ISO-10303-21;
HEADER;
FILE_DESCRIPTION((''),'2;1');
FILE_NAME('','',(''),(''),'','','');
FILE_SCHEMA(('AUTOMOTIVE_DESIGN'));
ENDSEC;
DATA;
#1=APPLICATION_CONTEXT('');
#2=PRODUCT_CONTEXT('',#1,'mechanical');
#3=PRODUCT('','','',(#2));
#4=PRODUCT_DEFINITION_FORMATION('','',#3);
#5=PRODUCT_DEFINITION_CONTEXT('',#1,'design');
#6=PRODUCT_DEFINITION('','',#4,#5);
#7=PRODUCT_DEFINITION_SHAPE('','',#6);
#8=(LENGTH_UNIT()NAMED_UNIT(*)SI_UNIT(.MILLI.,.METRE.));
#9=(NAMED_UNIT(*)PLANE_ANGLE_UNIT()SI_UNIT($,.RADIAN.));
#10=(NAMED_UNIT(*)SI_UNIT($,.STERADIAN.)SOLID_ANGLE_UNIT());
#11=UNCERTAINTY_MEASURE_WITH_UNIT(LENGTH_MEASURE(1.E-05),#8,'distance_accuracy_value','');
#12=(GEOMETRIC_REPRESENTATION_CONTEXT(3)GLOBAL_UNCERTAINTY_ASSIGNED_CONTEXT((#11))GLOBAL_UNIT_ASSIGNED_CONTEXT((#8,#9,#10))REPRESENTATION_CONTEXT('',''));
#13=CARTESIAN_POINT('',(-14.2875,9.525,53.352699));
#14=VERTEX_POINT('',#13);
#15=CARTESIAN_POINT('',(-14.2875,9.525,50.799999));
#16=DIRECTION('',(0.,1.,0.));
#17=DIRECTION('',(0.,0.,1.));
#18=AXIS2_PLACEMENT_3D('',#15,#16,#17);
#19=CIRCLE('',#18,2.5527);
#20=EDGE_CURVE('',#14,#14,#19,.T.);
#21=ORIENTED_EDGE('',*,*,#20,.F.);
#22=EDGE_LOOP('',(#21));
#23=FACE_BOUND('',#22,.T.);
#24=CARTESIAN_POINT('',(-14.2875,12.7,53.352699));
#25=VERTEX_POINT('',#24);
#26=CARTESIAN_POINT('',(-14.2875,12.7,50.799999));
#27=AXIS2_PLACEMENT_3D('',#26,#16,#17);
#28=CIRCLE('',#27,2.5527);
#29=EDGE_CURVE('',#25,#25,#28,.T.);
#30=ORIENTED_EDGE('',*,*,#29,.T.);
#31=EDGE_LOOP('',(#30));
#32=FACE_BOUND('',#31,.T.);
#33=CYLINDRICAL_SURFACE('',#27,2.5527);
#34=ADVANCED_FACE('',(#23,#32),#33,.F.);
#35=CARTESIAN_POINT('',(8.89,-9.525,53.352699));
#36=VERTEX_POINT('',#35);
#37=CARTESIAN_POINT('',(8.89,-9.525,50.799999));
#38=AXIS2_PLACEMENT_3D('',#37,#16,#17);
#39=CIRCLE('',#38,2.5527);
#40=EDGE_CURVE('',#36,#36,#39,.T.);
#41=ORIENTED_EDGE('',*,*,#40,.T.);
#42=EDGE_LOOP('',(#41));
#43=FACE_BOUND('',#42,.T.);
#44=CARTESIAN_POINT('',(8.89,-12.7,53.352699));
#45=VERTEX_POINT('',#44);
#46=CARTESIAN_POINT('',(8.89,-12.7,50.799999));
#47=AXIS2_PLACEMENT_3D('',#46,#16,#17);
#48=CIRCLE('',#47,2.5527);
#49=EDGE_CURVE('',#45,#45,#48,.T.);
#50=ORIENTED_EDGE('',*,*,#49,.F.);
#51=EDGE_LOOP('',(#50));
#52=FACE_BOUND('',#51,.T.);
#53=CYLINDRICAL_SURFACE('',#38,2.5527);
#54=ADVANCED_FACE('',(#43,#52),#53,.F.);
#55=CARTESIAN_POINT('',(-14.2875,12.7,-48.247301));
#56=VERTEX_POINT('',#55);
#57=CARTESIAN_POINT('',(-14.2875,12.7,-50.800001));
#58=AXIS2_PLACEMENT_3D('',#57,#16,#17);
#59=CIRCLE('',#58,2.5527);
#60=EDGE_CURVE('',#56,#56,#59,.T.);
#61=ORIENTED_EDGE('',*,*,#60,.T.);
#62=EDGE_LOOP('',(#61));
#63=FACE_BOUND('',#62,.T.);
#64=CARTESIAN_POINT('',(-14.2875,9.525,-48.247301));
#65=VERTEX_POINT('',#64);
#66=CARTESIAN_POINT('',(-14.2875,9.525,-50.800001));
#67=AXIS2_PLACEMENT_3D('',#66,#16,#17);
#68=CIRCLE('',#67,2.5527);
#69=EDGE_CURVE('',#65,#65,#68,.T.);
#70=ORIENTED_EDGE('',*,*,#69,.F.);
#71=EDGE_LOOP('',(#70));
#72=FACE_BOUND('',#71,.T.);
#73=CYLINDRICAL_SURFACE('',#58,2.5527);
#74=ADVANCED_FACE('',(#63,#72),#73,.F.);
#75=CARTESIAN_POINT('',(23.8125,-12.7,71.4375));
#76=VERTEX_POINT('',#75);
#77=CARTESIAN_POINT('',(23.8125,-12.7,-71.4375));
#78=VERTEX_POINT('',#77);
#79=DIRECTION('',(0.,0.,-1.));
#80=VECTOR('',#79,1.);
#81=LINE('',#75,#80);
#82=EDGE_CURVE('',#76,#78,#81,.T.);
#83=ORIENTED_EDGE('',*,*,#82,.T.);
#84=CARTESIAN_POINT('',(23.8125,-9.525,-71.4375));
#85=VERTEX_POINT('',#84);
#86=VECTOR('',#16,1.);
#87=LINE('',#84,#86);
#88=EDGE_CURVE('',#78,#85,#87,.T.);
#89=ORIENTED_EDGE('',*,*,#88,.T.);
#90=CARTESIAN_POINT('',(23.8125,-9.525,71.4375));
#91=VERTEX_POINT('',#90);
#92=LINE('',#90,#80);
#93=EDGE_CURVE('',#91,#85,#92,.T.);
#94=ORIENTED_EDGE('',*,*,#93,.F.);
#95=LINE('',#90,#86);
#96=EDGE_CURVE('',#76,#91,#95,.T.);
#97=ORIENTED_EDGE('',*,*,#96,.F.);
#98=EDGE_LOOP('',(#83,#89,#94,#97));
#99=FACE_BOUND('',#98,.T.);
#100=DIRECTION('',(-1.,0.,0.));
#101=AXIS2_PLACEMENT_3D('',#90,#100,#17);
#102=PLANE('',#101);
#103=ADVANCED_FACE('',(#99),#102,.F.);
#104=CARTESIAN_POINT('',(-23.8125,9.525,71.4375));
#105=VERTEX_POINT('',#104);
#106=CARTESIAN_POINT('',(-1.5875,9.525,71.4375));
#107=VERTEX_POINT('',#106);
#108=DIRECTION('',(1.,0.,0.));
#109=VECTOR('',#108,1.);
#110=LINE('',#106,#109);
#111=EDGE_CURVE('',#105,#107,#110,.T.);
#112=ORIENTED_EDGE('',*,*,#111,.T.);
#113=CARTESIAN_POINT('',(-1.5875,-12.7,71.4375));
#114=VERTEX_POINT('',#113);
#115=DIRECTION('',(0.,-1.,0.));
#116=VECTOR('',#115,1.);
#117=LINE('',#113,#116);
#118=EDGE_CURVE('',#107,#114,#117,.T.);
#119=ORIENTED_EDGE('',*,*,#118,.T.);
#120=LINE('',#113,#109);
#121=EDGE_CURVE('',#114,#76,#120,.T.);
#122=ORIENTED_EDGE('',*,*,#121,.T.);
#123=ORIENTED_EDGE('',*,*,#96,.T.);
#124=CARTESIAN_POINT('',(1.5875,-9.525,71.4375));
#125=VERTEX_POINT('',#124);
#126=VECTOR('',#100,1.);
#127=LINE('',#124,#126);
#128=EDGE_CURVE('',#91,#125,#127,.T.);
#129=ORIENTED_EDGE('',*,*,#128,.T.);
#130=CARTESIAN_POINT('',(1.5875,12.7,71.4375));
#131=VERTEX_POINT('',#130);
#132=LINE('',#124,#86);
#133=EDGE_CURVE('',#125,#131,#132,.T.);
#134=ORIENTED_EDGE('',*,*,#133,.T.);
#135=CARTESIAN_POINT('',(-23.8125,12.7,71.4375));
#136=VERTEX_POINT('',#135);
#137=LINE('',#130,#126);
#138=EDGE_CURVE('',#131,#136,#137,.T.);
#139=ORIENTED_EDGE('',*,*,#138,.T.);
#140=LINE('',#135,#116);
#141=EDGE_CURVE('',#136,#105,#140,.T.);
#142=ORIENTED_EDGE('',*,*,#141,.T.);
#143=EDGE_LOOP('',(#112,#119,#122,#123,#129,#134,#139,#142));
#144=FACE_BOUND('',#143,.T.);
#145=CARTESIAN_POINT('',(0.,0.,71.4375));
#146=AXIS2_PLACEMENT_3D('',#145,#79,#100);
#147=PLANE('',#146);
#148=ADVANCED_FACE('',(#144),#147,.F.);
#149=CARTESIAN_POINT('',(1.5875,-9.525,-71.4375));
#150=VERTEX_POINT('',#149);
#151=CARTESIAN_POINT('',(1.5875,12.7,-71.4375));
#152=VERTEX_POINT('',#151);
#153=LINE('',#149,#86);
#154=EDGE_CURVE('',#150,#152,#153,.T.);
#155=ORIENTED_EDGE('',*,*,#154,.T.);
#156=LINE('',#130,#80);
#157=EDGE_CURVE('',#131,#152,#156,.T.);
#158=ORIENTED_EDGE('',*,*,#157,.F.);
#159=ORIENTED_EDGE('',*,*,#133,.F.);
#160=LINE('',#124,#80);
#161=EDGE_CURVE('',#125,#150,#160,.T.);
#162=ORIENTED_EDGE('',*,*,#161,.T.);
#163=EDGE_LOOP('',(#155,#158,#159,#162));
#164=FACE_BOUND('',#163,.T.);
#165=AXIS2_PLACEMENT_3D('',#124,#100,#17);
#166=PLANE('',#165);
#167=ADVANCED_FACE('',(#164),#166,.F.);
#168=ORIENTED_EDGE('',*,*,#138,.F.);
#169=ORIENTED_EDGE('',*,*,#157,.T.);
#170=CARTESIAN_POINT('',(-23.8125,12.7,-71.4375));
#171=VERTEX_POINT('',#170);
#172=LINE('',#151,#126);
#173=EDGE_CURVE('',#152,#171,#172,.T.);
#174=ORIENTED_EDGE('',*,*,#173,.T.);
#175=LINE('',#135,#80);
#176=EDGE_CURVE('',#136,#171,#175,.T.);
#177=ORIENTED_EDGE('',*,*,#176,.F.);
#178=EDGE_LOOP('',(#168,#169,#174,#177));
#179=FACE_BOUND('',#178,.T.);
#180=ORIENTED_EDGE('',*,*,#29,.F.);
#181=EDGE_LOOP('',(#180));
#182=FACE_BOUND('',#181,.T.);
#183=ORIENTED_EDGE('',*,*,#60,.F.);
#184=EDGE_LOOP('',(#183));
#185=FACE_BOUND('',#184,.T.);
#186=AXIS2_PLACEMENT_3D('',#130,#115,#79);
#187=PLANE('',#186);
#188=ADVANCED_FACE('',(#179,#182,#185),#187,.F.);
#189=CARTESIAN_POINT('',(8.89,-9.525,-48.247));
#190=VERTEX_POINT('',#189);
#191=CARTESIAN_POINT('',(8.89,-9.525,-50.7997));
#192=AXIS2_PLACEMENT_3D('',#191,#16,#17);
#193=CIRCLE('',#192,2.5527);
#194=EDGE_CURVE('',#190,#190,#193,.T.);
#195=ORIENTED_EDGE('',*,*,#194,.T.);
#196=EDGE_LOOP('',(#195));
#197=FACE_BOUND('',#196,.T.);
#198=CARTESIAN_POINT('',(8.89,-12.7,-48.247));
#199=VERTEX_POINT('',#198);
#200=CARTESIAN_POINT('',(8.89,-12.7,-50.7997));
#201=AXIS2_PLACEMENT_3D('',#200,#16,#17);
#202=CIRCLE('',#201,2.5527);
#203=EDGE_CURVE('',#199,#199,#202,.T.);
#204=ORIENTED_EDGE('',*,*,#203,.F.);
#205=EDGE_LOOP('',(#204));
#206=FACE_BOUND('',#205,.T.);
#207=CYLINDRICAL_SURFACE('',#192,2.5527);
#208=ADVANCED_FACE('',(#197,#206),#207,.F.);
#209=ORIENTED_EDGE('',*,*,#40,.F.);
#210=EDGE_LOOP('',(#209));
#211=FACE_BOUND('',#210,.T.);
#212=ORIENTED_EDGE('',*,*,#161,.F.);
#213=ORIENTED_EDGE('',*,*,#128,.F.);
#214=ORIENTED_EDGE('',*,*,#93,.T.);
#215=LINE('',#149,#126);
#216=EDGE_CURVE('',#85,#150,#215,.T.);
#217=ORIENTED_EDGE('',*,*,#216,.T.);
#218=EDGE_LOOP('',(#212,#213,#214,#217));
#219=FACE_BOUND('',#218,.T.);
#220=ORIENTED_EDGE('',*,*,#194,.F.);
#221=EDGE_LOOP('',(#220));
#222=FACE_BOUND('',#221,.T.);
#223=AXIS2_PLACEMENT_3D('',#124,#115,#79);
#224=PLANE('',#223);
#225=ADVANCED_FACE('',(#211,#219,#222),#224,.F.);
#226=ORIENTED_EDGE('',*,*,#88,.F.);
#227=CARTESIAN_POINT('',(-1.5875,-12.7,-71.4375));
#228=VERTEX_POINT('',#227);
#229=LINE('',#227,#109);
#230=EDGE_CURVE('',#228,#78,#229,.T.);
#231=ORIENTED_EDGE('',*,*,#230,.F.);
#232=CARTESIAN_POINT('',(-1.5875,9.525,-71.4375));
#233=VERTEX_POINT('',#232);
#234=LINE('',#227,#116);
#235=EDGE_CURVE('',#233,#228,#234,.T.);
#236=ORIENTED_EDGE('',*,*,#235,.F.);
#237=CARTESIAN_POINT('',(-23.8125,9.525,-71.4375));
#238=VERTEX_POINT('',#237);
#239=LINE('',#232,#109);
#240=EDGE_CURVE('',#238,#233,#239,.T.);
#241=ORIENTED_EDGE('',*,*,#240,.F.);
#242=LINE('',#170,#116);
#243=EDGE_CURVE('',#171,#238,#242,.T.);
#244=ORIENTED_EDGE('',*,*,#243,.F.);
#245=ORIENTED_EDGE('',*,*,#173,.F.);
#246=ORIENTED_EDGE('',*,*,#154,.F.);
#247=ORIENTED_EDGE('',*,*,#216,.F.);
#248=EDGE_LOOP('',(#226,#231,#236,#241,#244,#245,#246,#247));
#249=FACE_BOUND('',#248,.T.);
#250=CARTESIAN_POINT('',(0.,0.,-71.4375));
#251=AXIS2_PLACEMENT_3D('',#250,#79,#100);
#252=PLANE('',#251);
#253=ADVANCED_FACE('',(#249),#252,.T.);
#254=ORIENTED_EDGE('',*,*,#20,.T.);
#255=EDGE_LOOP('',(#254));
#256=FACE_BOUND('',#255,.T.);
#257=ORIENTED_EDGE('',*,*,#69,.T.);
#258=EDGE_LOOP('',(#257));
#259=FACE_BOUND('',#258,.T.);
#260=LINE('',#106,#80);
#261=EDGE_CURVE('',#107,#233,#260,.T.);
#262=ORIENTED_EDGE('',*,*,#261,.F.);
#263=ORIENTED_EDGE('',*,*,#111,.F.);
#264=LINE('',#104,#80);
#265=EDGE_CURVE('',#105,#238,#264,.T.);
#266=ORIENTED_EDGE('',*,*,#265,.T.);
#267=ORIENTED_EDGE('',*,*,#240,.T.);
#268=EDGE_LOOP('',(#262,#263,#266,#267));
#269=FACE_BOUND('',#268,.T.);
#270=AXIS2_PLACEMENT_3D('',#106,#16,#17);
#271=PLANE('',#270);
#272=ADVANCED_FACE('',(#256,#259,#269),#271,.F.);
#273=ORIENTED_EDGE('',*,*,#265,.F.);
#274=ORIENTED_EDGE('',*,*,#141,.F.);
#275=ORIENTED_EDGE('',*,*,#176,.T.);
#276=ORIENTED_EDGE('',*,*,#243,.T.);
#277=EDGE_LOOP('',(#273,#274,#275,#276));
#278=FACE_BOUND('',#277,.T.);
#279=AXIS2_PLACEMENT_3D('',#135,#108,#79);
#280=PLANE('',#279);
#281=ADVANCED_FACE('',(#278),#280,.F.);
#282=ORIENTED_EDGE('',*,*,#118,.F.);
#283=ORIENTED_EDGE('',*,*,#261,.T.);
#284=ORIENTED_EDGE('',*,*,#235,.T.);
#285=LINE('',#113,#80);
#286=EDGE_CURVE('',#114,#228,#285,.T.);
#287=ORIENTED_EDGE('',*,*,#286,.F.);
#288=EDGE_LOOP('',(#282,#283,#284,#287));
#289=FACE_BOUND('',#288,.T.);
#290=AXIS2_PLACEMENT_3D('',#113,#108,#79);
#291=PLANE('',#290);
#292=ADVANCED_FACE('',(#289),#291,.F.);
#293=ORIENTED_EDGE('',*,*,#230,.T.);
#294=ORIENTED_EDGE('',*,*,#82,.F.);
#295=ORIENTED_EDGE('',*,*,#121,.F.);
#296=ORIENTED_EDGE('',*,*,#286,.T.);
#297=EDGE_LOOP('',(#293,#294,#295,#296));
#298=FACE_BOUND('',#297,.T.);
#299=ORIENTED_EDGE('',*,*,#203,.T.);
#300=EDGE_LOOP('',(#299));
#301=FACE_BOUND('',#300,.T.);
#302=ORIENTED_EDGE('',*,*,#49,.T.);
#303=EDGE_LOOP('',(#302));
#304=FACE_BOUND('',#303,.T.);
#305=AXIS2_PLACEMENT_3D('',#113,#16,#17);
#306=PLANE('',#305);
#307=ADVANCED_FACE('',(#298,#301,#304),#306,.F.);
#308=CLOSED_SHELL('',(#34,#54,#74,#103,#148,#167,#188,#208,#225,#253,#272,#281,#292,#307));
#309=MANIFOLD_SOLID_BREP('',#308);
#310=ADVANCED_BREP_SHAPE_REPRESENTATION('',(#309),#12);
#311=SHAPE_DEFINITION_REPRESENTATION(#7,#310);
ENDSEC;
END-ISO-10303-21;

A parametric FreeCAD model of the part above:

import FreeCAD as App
import Part
import Sketcher
from FreeCAD import Vector
Q = App.Units.Quantity

doc = App.newDocument("Part")
body = doc.addObject("PartDesign::Body", "Body")

# Sketch on XY plane
sketch1 = doc.addObject("Sketcher::SketchObject", "Sketch")
body.addObject(sketch1)
sketch1.AttachmentSupport = (doc.XY_Plane, [""])
sketch1.MapMode = "FlatFace"
sketch1.addGeometry(Part.LineSegment(Vector(23.8, -12.7, 0), Vector(23.8, -9.5, 0)), False)
sketch1.addGeometry(Part.LineSegment(Vector(23.8, -9.5, 0), Vector(1.6, -9.5, 0)), False)
sketch1.addGeometry(Part.LineSegment(Vector(1.6, -9.5, 0), Vector(1.6, 12.7, 0)), False)
sketch1.addGeometry(Part.LineSegment(Vector(1.6, 12.7, 0), Vector(-23.8, 12.7, 0)), False)
sketch1.addGeometry(Part.LineSegment(Vector(-23.8, 12.7, 0), Vector(-23.8, 9.5, 0)), False)
sketch1.addGeometry(Part.LineSegment(Vector(-23.8, 9.5, 0), Vector(-1.6, 9.5, 0)), False)
sketch1.addGeometry(Part.LineSegment(Vector(-1.6, 9.5, 0), Vector(-1.6, -12.7, 0)), False)
sketch1.addGeometry(Part.LineSegment(Vector(-1.6, -12.7, 0), Vector(23.8, -12.7, 0)), False)
sketch1.addConstraint(Sketcher.Constraint("Coincident", 0, 2, 1, 1))
sketch1.addConstraint(Sketcher.Constraint("Coincident", 1, 2, 2, 1))
sketch1.addConstraint(Sketcher.Constraint("Coincident", 2, 2, 3, 1))
sketch1.addConstraint(Sketcher.Constraint("Coincident", 3, 2, 4, 1))
sketch1.addConstraint(Sketcher.Constraint("Coincident", 4, 2, 5, 1))
sketch1.addConstraint(Sketcher.Constraint("Coincident", 5, 2, 6, 1))
sketch1.addConstraint(Sketcher.Constraint("Coincident", 6, 2, 7, 1))
sketch1.addConstraint(Sketcher.Constraint("Coincident", 7, 2, 0, 1))
sketch1.addConstraint(Sketcher.Constraint("Vertical", 0))
sketch1.addConstraint(Sketcher.Constraint("Horizontal", 1))
sketch1.addConstraint(Sketcher.Constraint("Vertical", 2))
sketch1.addConstraint(Sketcher.Constraint("Horizontal", 3))
sketch1.addConstraint(Sketcher.Constraint("Vertical", 4))
sketch1.addConstraint(Sketcher.Constraint("Horizontal", 5))
sketch1.addConstraint(Sketcher.Constraint("Vertical", 6))
sketch1.addConstraint(Sketcher.Constraint("Horizontal", 7))
sketch1.addConstraint(Sketcher.Constraint("Symmetric", 0, 2, 4, 2, -1, 1))
sketch1.addConstraint(Sketcher.Constraint("Symmetric", 2, 2, 6, 2, -1, 1))
sketch1.addConstraint(Sketcher.Constraint("Equal", 5, 2))
sketch1.addConstraint(Sketcher.Constraint("DistanceX", 3, 2, 3, 1, Q("1 in")))
sketch1.addConstraint(Sketcher.Constraint("DistanceY", 6, 2, 2, 2, Q("1 in")))
sketch1.addConstraint(Sketcher.Constraint("DistanceX", 1, 2, 1, 1, Q("0.875 in")))
pad1 = doc.addObject("PartDesign::Pad", "Pad")
body.addObject(pad1)
pad1.Profile = sketch1
pad1.Type = "TwoLengths"
pad1.Length = Q("2.8125 in")
pad1.Length2 = Q("2.8125 in")

# Sketch on XZ plane
sketch2 = doc.addObject("Sketcher::SketchObject", "Sketch001")
body.addObject(sketch2)
sketch2.AttachmentSupport = (doc.XZ_Plane, [""])
sketch2.MapMode = "FlatFace"
sketch2.AttachmentOffset = App.Placement(Vector(0, 0, -0.5 * 25.4), App.Rotation())
sketch2.addGeometry(Part.Circle(Vector(-14.3, 50.8, 0), Vector(0, 0, 1), 2.6), False)
sketch2.addGeometry(Part.Circle(Vector(-14.3, -50.8, 0), Vector(0, 0, 1), 2.6), False)
sketch2.addConstraint(Sketcher.Constraint("Equal", 0, 1))
sketch2.addConstraint(Sketcher.Constraint("Symmetric", 0, 3, 1, 3, -1))
sketch2.addConstraint(Sketcher.Constraint("Diameter", 0, Q("0.201 in")))
sketch2.addConstraint(Sketcher.Constraint("DistanceY", -1, 1, 0, 3, Q("2 in")))
sketch2.addConstraint(Sketcher.Constraint("DistanceX", 0, 3, -1, 1, Q("0.5625 in")))
doc.recompute()
hole = doc.addObject("PartDesign::Hole", "Hole")
body.addObject(hole)
hole.Profile = sketch2
hole.ThreadType = "None"
hole.Diameter = Q("0.201 in")
hole.DepthType = "ThroughAll"
hole.Reversed = True

# Sketch on XZ plane
sketch3 = doc.addObject("Sketcher::SketchObject", "Sketch002")
body.addObject(sketch3)
sketch3.AttachmentSupport = (doc.XZ_Plane, [""])
sketch3.MapMode = "FlatFace"
sketch3.AttachmentOffset = App.Placement(Vector(0, 0, 0.375 * 25.4), App.Rotation())
sketch3.addGeometry(Part.Circle(Vector(8.9, 50.8, 0), Vector(0, 0, 1), 2.6), False)
sketch3.addGeometry(Part.Circle(Vector(8.9, -50.8, 0), Vector(0, 0, 1), 2.6), False)
sketch3.addConstraint(Sketcher.Constraint("Equal", 0, 1))
sketch3.addConstraint(Sketcher.Constraint("Vertical", 0, 3, 1, 3))
sketch3.addConstraint(Sketcher.Constraint("Diameter", 0, Q("0.201 in")))
sketch3.addConstraint(Sketcher.Constraint("DistanceY", -1, 1, 0, 3, Q("2 in")))
sketch3.addConstraint(Sketcher.Constraint("DistanceX", -1, 1, 0, 3, Q("0.35 in")))
sketch3.addConstraint(Sketcher.Constraint("DistanceY", 1, 3, -1, 1, Q("50.7997 mm")))
doc.recompute()
hole2 = doc.addObject("PartDesign::Hole", "Hole001")
body.addObject(hole2)
hole2.Profile = sketch3
hole2.ThreadType = "None"
hole2.Diameter = Q("0.201 in")
hole2.DepthType = "ThroughAll"
hole2.Reversed = True

doc.recompute()
